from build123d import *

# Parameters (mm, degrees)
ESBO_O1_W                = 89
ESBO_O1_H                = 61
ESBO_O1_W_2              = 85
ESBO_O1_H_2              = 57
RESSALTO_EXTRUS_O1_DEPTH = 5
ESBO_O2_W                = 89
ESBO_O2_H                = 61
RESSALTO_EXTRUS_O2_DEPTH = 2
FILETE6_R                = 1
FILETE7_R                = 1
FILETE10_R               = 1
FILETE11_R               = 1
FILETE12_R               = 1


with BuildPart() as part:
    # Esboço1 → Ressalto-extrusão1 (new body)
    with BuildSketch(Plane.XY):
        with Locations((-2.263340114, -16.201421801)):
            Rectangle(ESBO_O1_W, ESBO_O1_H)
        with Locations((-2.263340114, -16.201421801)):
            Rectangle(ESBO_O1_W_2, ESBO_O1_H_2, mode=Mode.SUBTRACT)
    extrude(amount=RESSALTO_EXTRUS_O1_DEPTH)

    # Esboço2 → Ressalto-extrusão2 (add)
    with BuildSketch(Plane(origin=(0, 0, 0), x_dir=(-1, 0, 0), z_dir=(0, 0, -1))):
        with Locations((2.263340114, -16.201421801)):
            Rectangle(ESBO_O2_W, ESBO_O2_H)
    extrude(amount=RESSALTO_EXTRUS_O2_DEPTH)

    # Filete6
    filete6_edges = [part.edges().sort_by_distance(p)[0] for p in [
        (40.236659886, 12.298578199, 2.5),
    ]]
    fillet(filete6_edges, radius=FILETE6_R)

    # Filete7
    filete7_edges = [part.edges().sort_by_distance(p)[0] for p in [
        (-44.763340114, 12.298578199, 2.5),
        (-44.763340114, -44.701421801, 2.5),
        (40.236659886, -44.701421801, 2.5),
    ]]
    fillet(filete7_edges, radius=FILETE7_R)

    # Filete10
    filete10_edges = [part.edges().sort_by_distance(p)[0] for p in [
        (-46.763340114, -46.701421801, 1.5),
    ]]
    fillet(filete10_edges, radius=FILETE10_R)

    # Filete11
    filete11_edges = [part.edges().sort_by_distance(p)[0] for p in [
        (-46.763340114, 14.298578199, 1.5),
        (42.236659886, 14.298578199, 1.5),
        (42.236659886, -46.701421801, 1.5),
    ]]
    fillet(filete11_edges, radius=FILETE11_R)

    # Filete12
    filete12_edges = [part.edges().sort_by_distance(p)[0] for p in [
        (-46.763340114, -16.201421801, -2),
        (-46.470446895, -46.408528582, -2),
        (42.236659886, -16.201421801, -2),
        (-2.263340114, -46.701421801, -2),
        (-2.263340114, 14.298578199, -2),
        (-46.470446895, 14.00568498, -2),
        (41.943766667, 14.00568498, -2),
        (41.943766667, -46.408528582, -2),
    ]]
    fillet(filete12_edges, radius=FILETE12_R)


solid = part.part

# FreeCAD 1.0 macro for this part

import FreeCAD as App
import Part
import Sketcher
from FreeCAD import Vector


def edges_at(feature, points):
    """Names of the edges that pass closest to the given points."""
    edges = feature.Shape.Edges
    near = lambda p: min(range(len(edges)), key=lambda i: edges[i].distToShape(Part.Vertex(*p))[0])
    return sorted({f"Edge{near(p) + 1}" for p in points})


def add_polygon(sketch, points):
    """Adds a closed chain of lines whose ends are joined by coincident constraints."""
    first, n = sketch.GeometryCount, len(points)
    for a, b in zip(points, points[1:] + points[:1]):
        sketch.addGeometry(Part.LineSegment(App.Vector(*a, 0), App.Vector(*b, 0)), False)
    for i in range(n):
        sketch.addConstraint(Sketcher.Constraint("Coincident", first + i, 2, first + (i + 1) % n, 1))

doc = App.newDocument("Part")
body = doc.addObject("PartDesign::Body", "Body")

sketch1 = doc.addObject("Sketcher::SketchObject", "Sketch")
body.addObject(sketch1)
sketch1.AttachmentSupport = (doc.XY_Plane, [""])
sketch1.MapMode = "FlatFace"
add_polygon(sketch1, [(-47, 14), (-47, -47), (42, -47), (42, 14)])
add_polygon(sketch1, [(40, -45), (-45, -45), (-45, 12), (40, 12)])
sketch1.addConstraint([
    Sketcher.Constraint("Vertical", 0),
    Sketcher.Constraint("Horizontal", 1),
    Sketcher.Constraint("Vertical", 2),
    Sketcher.Constraint("Horizontal", 3),
    Sketcher.Constraint("Horizontal", 4),
    Sketcher.Constraint("Vertical", 5),
    Sketcher.Constraint("Horizontal", 6),
    Sketcher.Constraint("Vertical", 7),
    Sketcher.Constraint("DistanceX", 1, 1, 1, 2, 89.0),
    Sketcher.Constraint("DistanceX", 4, 2, 4, 1, 85.0),
    Sketcher.Constraint("DistanceY", 0, 2, 0, 1, 61.0),
    Sketcher.Constraint("DistanceY", 5, 1, 5, 2, 57.0),
    Sketcher.Constraint("DistanceX", 0, 2, 4, 2, 2.0),
    Sketcher.Constraint("DistanceY", 0, 2, 4, 2, 2.0),
    Sketcher.Constraint("DistanceX", 0, 2, -1, 1, 46.76334),
    Sketcher.Constraint("DistanceY", 0, 2, -1, 1, 46.701422),
])
pad1 = doc.addObject("PartDesign::Pad", "Pad")
body.addObject(pad1)
pad1.Profile = sketch1
pad1.Length = 5

sketch2 = doc.addObject("Sketcher::SketchObject", "Sketch001")
body.addObject(sketch2)
sketch2.AttachmentSupport = (doc.XY_Plane, [""])
sketch2.MapMode = "FlatFace"
add_polygon(sketch2, [(42, 14), (42, -47), (-47, -47), (-47, 14)])
sketch2.addConstraint([
    Sketcher.Constraint("Vertical", 0),
    Sketcher.Constraint("Horizontal", 1),
    Sketcher.Constraint("Vertical", 2),
    Sketcher.Constraint("Horizontal", 3),
    Sketcher.Constraint("DistanceX", 1, 2, 1, 1, 89.0),
    Sketcher.Constraint("DistanceY", 0, 2, 0, 1, 61.0),
    Sketcher.Constraint("DistanceX", -1, 1, 0, 2, 42.23666),
    Sketcher.Constraint("DistanceY", 0, 2, -1, 1, 46.701422),
])
pad2 = doc.addObject("PartDesign::Pad", "Pad001")
body.addObject(pad2)
pad2.Profile = sketch2
pad2.Length = 2
pad2.Reversed = True
doc.recompute()

fillet = doc.addObject("PartDesign::Fillet", "Fillet")
body.addObject(fillet)
fillet.Base = (pad2, edges_at(pad2, [(40.237, 12.299, 2.5)]))
fillet.Radius = 1
doc.recompute()

fillet2 = doc.addObject("PartDesign::Fillet", "Fillet001")
body.addObject(fillet2)
fillet2.Base = (fillet, edges_at(fillet, [(-44.763, 12.299, 2.5), (-44.763, -44.701, 2.5), (40.237, -44.701, 2.5)]))
fillet2.Radius = 1
doc.recompute()

fillet3 = doc.addObject("PartDesign::Fillet", "Fillet002")
body.addObject(fillet3)
fillet3.Base = (fillet2, edges_at(fillet2, [(-46.763, -46.701, 1.5)]))
fillet3.Radius = 1
doc.recompute()

fillet4 = doc.addObject("PartDesign::Fillet", "Fillet003")
body.addObject(fillet4)
fillet4.Base = (fillet3, edges_at(fillet3, [(-46.763, 14.299, 1.5), (42.237, 14.299, 1.5), (42.237, -46.701, 1.5)]))
fillet4.Radius = 1
doc.recompute()

fillet5 = doc.addObject("PartDesign::Fillet", "Fillet004")
body.addObject(fillet5)
fillet5.Base = (fillet4, edges_at(fillet4, [
    (-46.763, -16.201, -2),
    (-46.47, -46.409, -2),
    (42.237, -16.201, -2),
    (-2.263, -46.701, -2),
    (-2.263, 14.299, -2),
    (-46.47, 14.006, -2),
    (41.944, 14.006, -2),
    (41.944, -46.409, -2),
]))
fillet5.Radius = 1

doc.recompute()
